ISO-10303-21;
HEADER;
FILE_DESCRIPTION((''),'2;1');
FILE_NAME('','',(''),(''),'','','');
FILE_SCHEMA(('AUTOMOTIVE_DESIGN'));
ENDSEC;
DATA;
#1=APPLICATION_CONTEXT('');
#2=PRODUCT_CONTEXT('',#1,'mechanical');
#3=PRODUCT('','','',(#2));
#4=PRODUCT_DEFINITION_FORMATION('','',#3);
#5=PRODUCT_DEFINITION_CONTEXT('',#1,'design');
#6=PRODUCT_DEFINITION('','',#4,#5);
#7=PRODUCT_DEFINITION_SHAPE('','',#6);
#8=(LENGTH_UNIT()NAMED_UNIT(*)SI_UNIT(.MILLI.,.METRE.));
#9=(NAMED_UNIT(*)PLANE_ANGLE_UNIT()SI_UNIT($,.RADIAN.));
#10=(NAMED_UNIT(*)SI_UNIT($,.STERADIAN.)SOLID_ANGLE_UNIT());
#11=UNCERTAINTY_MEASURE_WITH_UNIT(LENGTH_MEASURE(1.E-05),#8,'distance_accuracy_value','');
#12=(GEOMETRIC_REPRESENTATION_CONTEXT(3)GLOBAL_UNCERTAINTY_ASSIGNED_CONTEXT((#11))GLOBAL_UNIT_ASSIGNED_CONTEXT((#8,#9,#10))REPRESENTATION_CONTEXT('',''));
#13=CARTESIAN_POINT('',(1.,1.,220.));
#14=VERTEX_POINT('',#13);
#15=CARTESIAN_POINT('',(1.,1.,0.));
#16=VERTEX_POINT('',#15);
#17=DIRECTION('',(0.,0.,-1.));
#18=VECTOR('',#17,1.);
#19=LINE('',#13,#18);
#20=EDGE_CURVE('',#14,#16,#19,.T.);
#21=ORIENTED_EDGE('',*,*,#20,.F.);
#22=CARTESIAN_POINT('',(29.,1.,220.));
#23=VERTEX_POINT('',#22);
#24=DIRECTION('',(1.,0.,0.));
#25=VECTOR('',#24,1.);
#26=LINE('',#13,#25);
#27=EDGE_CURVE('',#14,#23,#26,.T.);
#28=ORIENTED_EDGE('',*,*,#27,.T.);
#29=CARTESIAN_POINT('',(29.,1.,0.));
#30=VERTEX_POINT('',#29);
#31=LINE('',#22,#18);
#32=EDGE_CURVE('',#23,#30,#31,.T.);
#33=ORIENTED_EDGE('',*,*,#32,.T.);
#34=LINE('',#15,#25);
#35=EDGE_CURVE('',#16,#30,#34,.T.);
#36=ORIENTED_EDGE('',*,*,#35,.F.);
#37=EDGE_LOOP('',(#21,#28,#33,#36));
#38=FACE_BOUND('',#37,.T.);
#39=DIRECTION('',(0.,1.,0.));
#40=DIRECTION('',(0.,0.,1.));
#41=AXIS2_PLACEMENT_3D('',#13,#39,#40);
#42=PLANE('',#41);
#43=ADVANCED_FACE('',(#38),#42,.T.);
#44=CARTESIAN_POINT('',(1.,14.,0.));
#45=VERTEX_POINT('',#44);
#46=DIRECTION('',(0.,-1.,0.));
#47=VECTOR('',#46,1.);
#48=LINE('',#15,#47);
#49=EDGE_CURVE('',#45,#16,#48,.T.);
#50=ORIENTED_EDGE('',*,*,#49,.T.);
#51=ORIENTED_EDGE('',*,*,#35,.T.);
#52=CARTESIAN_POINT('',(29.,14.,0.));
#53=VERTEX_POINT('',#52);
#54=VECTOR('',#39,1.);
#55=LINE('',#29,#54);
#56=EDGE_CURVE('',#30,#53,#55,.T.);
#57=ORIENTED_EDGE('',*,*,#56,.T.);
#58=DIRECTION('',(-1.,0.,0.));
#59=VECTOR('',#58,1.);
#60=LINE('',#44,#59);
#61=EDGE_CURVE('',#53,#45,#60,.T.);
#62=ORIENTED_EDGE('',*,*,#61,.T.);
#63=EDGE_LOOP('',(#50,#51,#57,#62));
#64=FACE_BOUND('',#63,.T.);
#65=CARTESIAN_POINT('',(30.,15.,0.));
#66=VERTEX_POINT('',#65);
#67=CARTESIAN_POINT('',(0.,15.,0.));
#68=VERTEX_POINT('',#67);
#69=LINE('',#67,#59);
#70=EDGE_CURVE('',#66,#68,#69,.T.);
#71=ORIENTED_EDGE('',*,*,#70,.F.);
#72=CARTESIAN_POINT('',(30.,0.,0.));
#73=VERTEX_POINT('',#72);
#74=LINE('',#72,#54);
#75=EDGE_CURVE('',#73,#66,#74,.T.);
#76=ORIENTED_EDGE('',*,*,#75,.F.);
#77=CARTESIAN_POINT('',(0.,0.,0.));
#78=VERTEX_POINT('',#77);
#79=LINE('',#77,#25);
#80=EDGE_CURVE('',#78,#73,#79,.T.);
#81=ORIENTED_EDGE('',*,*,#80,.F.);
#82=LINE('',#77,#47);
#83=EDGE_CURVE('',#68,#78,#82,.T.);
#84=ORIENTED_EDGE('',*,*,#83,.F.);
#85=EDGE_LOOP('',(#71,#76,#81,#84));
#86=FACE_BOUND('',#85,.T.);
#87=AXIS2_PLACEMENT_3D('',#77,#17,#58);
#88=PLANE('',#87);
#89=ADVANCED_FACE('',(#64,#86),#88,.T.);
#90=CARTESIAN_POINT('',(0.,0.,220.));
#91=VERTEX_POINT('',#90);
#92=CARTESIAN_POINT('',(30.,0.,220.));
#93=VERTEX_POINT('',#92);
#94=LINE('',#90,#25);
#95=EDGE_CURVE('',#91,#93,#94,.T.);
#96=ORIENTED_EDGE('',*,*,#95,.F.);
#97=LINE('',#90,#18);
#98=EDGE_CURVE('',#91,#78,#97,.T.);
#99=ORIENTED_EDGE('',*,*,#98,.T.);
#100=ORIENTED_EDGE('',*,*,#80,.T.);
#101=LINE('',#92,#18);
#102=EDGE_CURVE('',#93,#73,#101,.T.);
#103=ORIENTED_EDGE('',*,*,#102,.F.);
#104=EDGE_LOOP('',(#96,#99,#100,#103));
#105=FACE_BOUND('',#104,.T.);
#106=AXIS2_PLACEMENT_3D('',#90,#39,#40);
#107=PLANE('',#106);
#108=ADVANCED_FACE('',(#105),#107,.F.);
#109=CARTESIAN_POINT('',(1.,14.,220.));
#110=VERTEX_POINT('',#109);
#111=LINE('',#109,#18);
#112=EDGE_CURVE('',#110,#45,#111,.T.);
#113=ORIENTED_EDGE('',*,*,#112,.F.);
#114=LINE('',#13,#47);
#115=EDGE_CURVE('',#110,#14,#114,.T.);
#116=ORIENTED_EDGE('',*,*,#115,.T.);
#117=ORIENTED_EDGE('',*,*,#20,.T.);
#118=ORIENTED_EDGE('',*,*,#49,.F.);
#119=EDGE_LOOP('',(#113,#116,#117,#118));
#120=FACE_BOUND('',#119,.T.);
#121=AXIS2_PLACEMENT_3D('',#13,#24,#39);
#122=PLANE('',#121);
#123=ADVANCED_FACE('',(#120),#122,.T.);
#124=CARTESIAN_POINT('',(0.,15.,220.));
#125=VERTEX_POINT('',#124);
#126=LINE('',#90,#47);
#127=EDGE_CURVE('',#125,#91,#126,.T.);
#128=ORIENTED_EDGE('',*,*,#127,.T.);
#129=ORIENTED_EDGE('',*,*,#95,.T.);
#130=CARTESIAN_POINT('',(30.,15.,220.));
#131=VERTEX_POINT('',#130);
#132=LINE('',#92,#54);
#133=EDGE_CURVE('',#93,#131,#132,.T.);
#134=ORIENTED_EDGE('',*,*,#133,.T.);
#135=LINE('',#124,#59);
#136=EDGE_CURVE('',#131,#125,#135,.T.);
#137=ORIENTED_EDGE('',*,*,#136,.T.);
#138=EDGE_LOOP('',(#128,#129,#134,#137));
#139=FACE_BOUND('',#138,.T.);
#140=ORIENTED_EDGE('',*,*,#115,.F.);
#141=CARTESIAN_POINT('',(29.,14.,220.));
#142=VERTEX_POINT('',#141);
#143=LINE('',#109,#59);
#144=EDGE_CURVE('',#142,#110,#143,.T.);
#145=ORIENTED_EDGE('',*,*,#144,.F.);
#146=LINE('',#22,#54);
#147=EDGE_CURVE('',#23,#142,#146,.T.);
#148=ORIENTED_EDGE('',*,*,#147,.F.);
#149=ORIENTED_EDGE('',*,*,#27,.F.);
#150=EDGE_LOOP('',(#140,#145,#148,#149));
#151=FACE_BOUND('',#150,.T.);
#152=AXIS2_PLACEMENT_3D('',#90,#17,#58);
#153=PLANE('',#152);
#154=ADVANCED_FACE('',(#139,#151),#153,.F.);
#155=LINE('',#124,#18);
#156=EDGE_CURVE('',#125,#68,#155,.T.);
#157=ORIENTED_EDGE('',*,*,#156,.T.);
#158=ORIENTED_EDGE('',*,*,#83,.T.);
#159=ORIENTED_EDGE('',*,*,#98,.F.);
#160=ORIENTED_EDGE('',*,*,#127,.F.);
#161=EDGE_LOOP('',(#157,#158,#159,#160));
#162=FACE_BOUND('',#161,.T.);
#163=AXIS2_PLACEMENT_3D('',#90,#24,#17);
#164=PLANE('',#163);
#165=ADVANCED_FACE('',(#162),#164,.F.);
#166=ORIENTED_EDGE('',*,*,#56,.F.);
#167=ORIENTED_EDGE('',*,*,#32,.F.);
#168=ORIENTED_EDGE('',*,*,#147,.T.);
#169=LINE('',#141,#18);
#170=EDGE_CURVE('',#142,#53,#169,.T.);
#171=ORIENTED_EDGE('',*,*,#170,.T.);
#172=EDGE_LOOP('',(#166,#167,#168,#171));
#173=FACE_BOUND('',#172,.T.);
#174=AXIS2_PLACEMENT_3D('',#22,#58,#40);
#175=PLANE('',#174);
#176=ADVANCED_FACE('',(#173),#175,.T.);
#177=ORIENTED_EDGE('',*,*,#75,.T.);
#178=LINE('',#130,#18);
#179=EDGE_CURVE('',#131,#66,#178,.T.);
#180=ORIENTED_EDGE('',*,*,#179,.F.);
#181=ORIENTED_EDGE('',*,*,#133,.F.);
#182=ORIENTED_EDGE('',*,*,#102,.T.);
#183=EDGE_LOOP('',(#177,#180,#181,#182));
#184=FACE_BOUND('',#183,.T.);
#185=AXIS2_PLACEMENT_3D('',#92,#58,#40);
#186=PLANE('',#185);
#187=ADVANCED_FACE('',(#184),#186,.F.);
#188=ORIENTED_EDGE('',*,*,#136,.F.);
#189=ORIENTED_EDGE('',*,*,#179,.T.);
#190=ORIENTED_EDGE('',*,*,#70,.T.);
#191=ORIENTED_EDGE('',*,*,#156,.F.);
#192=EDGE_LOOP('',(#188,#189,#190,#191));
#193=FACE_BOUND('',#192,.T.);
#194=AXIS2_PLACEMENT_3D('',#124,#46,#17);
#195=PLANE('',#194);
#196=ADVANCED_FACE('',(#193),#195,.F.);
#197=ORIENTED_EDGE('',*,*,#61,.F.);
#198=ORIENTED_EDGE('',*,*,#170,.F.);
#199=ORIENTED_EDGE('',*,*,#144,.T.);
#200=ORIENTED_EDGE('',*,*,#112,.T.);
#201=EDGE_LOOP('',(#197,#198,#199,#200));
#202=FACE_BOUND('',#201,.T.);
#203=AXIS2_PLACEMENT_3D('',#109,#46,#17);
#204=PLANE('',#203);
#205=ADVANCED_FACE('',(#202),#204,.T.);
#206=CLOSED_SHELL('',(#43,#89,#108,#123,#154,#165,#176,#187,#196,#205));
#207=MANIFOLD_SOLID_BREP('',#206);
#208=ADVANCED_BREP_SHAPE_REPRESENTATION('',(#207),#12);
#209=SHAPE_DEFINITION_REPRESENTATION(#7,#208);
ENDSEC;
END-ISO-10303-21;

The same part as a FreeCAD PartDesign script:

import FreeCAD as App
import Part
import Sketcher

V = App.Vector

doc = App.newDocument("Part")
body = doc.addObject("PartDesign::Body", "Body")

# Sketch on XY plane
sketch1 = body.newObject("Sketcher::SketchObject", "Sketch")
sketch1.AttachmentSupport = (doc.getObject("XY_Plane"), [""])
sketch1.MapMode = "FlatFace"
sketch1.addGeometry(Part.LineSegment(V(0, 15, 0), V(0, 0, 0)), False)
sketch1.addGeometry(Part.LineSegment(V(0, 0, 0), V(30, 0, 0)), False)
sketch1.addGeometry(Part.LineSegment(V(30, 0, 0), V(30, 15, 0)), False)
sketch1.addGeometry(Part.LineSegment(V(30, 15, 0), V(0, 15, 0)), False)
sketch1.addGeometry(Part.LineSegment(V(29, 1, 0), V(1, 1, 0)), False)
sketch1.addGeometry(Part.LineSegment(V(1, 1, 0), V(1, 14, 0)), False)
sketch1.addGeometry(Part.LineSegment(V(1, 14, 0), V(29, 14, 0)), False)
sketch1.addGeometry(Part.LineSegment(V(29, 14, 0), V(29, 1, 0)), False)
sketch1.addConstraint(Sketcher.Constraint("Coincident", 0, 2, 1, 1))
sketch1.addConstraint(Sketcher.Constraint("Coincident", 1, 2, 2, 1))
sketch1.addConstraint(Sketcher.Constraint("Coincident", 2, 2, 3, 1))
sketch1.addConstraint(Sketcher.Constraint("Coincident", 3, 2, 0, 1))
sketch1.addConstraint(Sketcher.Constraint("Coincident", 4, 2, 5, 1))
sketch1.addConstraint(Sketcher.Constraint("Coincident", 5, 2, 6, 1))
sketch1.addConstraint(Sketcher.Constraint("Coincident", 6, 2, 7, 1))
sketch1.addConstraint(Sketcher.Constraint("Coincident", 7, 2, 4, 1))
sketch1.addConstraint(Sketcher.Constraint("Vertical", 0))
sketch1.addConstraint(Sketcher.Constraint("Horizontal", 1))
sketch1.addConstraint(Sketcher.Constraint("Vertical", 2))
sketch1.addConstraint(Sketcher.Constraint("Horizontal", 3))
sketch1.addConstraint(Sketcher.Constraint("Horizontal", 4))
sketch1.addConstraint(Sketcher.Constraint("Vertical", 5))
sketch1.addConstraint(Sketcher.Constraint("Horizontal", 6))
sketch1.addConstraint(Sketcher.Constraint("Vertical", 7))
sketch1.addConstraint(Sketcher.Constraint("Coincident", 0, 2, -1, 1))
sketch1.addConstraint(Sketcher.Constraint("DistanceX", 1, 1, 1, 2, 30.0))
sketch1.addConstraint(Sketcher.Constraint("DistanceX", 4, 2, 4, 1, 28.0))
sketch1.addConstraint(Sketcher.Constraint("DistanceY", 0, 2, 0, 1, 15.0))
sketch1.addConstraint(Sketcher.Constraint("DistanceY", 5, 1, 5, 2, 13.0))
sketch1.addConstraint(Sketcher.Constraint("DistanceX", -1, 1, 4, 2, 1.0))
sketch1.addConstraint(Sketcher.Constraint("DistanceY", -1, 1, 4, 2, 1.0))
pad1 = body.newObject("PartDesign::Pad", "Pad")
pad1.Profile = sketch1
pad1.Length = 220

doc.recompute()
